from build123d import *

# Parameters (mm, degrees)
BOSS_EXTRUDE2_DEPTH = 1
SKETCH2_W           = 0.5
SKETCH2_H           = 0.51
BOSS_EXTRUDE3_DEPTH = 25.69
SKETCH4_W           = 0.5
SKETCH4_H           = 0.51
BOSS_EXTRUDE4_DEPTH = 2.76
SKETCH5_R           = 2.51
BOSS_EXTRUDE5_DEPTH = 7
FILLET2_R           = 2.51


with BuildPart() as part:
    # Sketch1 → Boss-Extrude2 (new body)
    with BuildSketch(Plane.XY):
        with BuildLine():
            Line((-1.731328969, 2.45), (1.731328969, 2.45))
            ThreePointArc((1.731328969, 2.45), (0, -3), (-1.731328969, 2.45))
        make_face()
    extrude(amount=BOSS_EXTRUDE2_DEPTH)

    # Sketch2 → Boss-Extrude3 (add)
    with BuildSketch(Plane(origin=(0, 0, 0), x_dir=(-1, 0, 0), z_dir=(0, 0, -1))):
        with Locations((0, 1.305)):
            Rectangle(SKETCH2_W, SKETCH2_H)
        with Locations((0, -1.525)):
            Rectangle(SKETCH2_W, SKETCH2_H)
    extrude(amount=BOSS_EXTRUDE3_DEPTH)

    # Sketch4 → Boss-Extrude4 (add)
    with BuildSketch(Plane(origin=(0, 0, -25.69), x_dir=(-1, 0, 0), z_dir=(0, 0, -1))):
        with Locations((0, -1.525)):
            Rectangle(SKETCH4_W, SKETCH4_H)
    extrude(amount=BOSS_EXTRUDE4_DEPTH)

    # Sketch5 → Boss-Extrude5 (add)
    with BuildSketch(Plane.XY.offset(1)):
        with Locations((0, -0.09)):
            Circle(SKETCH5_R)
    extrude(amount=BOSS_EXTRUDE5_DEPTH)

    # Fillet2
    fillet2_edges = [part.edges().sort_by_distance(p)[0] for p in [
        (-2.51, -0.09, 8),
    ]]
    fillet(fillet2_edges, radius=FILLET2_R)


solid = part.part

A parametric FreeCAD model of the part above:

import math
import FreeCAD as App
import Part
import Sketcher
Q = App.Units.Quantity


def edges_at(feature, points):
    """Names of the edges that pass closest to the given points."""
    edges = feature.Shape.Edges
    near = lambda p: min(range(len(edges)), key=lambda i: edges[i].distToShape(Part.Vertex(*p))[0])
    return sorted({f"Edge{near(p) + 1}" for p in points})


def add_polygon(sketch, points):
    """Adds a closed chain of lines whose ends are joined by coincident constraints."""
    first, n = sketch.GeometryCount, len(points)
    for a, b in zip(points, points[1:] + points[:1]):
        sketch.addGeometry(Part.LineSegment(App.Vector(*a, 0), App.Vector(*b, 0)), False)
    for i in range(n):
        sketch.addConstraint(Sketcher.Constraint("Coincident", first + i, 2, first + (i + 1) % n, 1))

doc = App.newDocument("Part")
body = doc.addObject("PartDesign::Body", "Body")

# Sketch on XY plane
sketch1 = body.newObject("Sketcher::SketchObject", "Sketch")
sketch1.AttachmentSupport = (doc.getObject("XY_Plane"), [""])
sketch1.MapMode = "FlatFace"
sketch1.addGeometry(Part.LineSegment(App.Vector(1.731329, 2.45, 0), App.Vector(-1.731329, 2.45, 0)), False)
sketch1.addGeometry(Part.ArcOfCircle(Part.Circle(App.Vector(0, 0, 0), App.Vector(0, 0, 1), 3), math.radians(125.247507), math.radians(414.752493)), False)
sketch1.addConstraint(Sketcher.Constraint("Coincident", 0, 1, 1, 2))
sketch1.addConstraint(Sketcher.Constraint("Coincident", 1, 1, 0, 2))
sketch1.addConstraint(Sketcher.Constraint("Horizontal", 0))
sketch1.addConstraint(Sketcher.Constraint("Coincident", 1, 3, -1, 1))
sketch1.addConstraint(Sketcher.Constraint("Radius", 1, Q("3 mm")))
sketch1.addConstraint(Sketcher.Constraint("DistanceY", -1, 1, 0, 1, Q("2.45 mm")))
pad1 = body.newObject("PartDesign::Pad", "Pad")
pad1.Profile = sketch1
pad1.Length = 1

# Sketch on XY plane
sketch2 = body.newObject("Sketcher::SketchObject", "Sketch001")
sketch2.AttachmentSupport = (doc.getObject("XY_Plane"), [""])
sketch2.MapMode = "FlatFace"
add_polygon(sketch2, [(0.25, 1.56), (0.25, 1.05), (-0.25, 1.05), (-0.25, 1.56)])  # lines 0-3
add_polygon(sketch2, [(0.25, -1.27), (0.25, -1.78), (-0.25, -1.78), (-0.25, -1.27)])  # lines 4-7
sketch2.addConstraint(Sketcher.Constraint("Vertical", 0))
sketch2.addConstraint(Sketcher.Constraint("Horizontal", 1))
sketch2.addConstraint(Sketcher.Constraint("Vertical", 2))
sketch2.addConstraint(Sketcher.Constraint("Horizontal", 3))
sketch2.addConstraint(Sketcher.Constraint("Vertical", 4))
sketch2.addConstraint(Sketcher.Constraint("Horizontal", 5))
sketch2.addConstraint(Sketcher.Constraint("Vertical", 6))
sketch2.addConstraint(Sketcher.Constraint("Horizontal", 7))
sketch2.addConstraint(Sketcher.Constraint("Vertical", 3, 2, 4, 2))
sketch2.addConstraint(Sketcher.Constraint("Vertical", 2, 2, 5, 2))
sketch2.addConstraint(Sketcher.Constraint("Equal", 2, 4))
sketch2.addConstraint(Sketcher.Constraint("DistanceX", 1, 2, 1, 1, Q("0.5 mm")))
sketch2.addConstraint(Sketcher.Constraint("DistanceY", 0, 2, 0, 1, Q("0.51 mm")))
sketch2.addConstraint(Sketcher.Constraint("DistanceX", -1, 1, 0, 2, Q("0.25 mm")))
sketch2.addConstraint(Sketcher.Constraint("DistanceY", -1, 1, 0, 2, Q("1.05 mm")))
sketch2.addConstraint(Sketcher.Constraint("DistanceY", 4, 2, -1, 1, Q("1.78 mm")))
pad2 = body.newObject("PartDesign::Pad", "Pad001")
pad2.Profile = sketch2
pad2.Length = 25.69
pad2.Reversed = True

# Sketch on XY plane
sketch3 = body.newObject("Sketcher::SketchObject", "Sketch002")
sketch3.AttachmentSupport = (doc.getObject("XY_Plane"), [""])
sketch3.MapMode = "FlatFace"
sketch3.AttachmentOffset = App.Placement(App.Vector(0, 0, -25.69), App.Rotation())
add_polygon(sketch3, [(0.25, -1.27), (0.25, -1.78), (-0.25, -1.78), (-0.25, -1.27)])  # lines 0-3
sketch3.addConstraint(Sketcher.Constraint("Vertical", 0))
sketch3.addConstraint(Sketcher.Constraint("Horizontal", 1))
sketch3.addConstraint(Sketcher.Constraint("Vertical", 2))
sketch3.addConstraint(Sketcher.Constraint("Horizontal", 3))
sketch3.addConstraint(Sketcher.Constraint("DistanceX", 1, 2, 1, 1, Q("0.5 mm")))
sketch3.addConstraint(Sketcher.Constraint("DistanceY", 0, 2, 0, 1, Q("0.51 mm")))
sketch3.addConstraint(Sketcher.Constraint("DistanceX", -1, 1, 0, 2, Q("0.25 mm")))
sketch3.addConstraint(Sketcher.Constraint("DistanceY", 0, 2, -1, 1, Q("1.78 mm")))
pad3 = body.newObject("PartDesign::Pad", "Pad002")
pad3.Profile = sketch3
pad3.Length = 2.76
pad3.Reversed = True

# Sketch on XY plane
sketch4 = body.newObject("Sketcher::SketchObject", "Sketch003")
sketch4.AttachmentSupport = (doc.getObject("XY_Plane"), [""])
sketch4.MapMode = "FlatFace"
sketch4.AttachmentOffset = App.Placement(App.Vector(0, 0, 1), App.Rotation())
sketch4.addGeometry(Part.Circle(App.Vector(0, -0.09, 0), App.Vector(0, 0, 1), 2.51), False)
sketch4.addConstraint(Sketcher.Constraint("PointOnObject", 0, 3, -2))
sketch4.addConstraint(Sketcher.Constraint("Diameter", 0, Q("5.02 mm")))
sketch4.addConstraint(Sketcher.Constraint("DistanceY", 0, 3, -1, 1, Q("0.09 mm")))
pad4 = body.newObject("PartDesign::Pad", "Pad003")
pad4.Profile = sketch4
pad4.Length = 7
doc.recompute()

fillet = body.newObject("PartDesign::Fillet", "Fillet")
fillet.Base = (pad4, edges_at(pad4, [(-2.51, -0.09, 8)]))
fillet.Radius = 2.51

doc.recompute()
